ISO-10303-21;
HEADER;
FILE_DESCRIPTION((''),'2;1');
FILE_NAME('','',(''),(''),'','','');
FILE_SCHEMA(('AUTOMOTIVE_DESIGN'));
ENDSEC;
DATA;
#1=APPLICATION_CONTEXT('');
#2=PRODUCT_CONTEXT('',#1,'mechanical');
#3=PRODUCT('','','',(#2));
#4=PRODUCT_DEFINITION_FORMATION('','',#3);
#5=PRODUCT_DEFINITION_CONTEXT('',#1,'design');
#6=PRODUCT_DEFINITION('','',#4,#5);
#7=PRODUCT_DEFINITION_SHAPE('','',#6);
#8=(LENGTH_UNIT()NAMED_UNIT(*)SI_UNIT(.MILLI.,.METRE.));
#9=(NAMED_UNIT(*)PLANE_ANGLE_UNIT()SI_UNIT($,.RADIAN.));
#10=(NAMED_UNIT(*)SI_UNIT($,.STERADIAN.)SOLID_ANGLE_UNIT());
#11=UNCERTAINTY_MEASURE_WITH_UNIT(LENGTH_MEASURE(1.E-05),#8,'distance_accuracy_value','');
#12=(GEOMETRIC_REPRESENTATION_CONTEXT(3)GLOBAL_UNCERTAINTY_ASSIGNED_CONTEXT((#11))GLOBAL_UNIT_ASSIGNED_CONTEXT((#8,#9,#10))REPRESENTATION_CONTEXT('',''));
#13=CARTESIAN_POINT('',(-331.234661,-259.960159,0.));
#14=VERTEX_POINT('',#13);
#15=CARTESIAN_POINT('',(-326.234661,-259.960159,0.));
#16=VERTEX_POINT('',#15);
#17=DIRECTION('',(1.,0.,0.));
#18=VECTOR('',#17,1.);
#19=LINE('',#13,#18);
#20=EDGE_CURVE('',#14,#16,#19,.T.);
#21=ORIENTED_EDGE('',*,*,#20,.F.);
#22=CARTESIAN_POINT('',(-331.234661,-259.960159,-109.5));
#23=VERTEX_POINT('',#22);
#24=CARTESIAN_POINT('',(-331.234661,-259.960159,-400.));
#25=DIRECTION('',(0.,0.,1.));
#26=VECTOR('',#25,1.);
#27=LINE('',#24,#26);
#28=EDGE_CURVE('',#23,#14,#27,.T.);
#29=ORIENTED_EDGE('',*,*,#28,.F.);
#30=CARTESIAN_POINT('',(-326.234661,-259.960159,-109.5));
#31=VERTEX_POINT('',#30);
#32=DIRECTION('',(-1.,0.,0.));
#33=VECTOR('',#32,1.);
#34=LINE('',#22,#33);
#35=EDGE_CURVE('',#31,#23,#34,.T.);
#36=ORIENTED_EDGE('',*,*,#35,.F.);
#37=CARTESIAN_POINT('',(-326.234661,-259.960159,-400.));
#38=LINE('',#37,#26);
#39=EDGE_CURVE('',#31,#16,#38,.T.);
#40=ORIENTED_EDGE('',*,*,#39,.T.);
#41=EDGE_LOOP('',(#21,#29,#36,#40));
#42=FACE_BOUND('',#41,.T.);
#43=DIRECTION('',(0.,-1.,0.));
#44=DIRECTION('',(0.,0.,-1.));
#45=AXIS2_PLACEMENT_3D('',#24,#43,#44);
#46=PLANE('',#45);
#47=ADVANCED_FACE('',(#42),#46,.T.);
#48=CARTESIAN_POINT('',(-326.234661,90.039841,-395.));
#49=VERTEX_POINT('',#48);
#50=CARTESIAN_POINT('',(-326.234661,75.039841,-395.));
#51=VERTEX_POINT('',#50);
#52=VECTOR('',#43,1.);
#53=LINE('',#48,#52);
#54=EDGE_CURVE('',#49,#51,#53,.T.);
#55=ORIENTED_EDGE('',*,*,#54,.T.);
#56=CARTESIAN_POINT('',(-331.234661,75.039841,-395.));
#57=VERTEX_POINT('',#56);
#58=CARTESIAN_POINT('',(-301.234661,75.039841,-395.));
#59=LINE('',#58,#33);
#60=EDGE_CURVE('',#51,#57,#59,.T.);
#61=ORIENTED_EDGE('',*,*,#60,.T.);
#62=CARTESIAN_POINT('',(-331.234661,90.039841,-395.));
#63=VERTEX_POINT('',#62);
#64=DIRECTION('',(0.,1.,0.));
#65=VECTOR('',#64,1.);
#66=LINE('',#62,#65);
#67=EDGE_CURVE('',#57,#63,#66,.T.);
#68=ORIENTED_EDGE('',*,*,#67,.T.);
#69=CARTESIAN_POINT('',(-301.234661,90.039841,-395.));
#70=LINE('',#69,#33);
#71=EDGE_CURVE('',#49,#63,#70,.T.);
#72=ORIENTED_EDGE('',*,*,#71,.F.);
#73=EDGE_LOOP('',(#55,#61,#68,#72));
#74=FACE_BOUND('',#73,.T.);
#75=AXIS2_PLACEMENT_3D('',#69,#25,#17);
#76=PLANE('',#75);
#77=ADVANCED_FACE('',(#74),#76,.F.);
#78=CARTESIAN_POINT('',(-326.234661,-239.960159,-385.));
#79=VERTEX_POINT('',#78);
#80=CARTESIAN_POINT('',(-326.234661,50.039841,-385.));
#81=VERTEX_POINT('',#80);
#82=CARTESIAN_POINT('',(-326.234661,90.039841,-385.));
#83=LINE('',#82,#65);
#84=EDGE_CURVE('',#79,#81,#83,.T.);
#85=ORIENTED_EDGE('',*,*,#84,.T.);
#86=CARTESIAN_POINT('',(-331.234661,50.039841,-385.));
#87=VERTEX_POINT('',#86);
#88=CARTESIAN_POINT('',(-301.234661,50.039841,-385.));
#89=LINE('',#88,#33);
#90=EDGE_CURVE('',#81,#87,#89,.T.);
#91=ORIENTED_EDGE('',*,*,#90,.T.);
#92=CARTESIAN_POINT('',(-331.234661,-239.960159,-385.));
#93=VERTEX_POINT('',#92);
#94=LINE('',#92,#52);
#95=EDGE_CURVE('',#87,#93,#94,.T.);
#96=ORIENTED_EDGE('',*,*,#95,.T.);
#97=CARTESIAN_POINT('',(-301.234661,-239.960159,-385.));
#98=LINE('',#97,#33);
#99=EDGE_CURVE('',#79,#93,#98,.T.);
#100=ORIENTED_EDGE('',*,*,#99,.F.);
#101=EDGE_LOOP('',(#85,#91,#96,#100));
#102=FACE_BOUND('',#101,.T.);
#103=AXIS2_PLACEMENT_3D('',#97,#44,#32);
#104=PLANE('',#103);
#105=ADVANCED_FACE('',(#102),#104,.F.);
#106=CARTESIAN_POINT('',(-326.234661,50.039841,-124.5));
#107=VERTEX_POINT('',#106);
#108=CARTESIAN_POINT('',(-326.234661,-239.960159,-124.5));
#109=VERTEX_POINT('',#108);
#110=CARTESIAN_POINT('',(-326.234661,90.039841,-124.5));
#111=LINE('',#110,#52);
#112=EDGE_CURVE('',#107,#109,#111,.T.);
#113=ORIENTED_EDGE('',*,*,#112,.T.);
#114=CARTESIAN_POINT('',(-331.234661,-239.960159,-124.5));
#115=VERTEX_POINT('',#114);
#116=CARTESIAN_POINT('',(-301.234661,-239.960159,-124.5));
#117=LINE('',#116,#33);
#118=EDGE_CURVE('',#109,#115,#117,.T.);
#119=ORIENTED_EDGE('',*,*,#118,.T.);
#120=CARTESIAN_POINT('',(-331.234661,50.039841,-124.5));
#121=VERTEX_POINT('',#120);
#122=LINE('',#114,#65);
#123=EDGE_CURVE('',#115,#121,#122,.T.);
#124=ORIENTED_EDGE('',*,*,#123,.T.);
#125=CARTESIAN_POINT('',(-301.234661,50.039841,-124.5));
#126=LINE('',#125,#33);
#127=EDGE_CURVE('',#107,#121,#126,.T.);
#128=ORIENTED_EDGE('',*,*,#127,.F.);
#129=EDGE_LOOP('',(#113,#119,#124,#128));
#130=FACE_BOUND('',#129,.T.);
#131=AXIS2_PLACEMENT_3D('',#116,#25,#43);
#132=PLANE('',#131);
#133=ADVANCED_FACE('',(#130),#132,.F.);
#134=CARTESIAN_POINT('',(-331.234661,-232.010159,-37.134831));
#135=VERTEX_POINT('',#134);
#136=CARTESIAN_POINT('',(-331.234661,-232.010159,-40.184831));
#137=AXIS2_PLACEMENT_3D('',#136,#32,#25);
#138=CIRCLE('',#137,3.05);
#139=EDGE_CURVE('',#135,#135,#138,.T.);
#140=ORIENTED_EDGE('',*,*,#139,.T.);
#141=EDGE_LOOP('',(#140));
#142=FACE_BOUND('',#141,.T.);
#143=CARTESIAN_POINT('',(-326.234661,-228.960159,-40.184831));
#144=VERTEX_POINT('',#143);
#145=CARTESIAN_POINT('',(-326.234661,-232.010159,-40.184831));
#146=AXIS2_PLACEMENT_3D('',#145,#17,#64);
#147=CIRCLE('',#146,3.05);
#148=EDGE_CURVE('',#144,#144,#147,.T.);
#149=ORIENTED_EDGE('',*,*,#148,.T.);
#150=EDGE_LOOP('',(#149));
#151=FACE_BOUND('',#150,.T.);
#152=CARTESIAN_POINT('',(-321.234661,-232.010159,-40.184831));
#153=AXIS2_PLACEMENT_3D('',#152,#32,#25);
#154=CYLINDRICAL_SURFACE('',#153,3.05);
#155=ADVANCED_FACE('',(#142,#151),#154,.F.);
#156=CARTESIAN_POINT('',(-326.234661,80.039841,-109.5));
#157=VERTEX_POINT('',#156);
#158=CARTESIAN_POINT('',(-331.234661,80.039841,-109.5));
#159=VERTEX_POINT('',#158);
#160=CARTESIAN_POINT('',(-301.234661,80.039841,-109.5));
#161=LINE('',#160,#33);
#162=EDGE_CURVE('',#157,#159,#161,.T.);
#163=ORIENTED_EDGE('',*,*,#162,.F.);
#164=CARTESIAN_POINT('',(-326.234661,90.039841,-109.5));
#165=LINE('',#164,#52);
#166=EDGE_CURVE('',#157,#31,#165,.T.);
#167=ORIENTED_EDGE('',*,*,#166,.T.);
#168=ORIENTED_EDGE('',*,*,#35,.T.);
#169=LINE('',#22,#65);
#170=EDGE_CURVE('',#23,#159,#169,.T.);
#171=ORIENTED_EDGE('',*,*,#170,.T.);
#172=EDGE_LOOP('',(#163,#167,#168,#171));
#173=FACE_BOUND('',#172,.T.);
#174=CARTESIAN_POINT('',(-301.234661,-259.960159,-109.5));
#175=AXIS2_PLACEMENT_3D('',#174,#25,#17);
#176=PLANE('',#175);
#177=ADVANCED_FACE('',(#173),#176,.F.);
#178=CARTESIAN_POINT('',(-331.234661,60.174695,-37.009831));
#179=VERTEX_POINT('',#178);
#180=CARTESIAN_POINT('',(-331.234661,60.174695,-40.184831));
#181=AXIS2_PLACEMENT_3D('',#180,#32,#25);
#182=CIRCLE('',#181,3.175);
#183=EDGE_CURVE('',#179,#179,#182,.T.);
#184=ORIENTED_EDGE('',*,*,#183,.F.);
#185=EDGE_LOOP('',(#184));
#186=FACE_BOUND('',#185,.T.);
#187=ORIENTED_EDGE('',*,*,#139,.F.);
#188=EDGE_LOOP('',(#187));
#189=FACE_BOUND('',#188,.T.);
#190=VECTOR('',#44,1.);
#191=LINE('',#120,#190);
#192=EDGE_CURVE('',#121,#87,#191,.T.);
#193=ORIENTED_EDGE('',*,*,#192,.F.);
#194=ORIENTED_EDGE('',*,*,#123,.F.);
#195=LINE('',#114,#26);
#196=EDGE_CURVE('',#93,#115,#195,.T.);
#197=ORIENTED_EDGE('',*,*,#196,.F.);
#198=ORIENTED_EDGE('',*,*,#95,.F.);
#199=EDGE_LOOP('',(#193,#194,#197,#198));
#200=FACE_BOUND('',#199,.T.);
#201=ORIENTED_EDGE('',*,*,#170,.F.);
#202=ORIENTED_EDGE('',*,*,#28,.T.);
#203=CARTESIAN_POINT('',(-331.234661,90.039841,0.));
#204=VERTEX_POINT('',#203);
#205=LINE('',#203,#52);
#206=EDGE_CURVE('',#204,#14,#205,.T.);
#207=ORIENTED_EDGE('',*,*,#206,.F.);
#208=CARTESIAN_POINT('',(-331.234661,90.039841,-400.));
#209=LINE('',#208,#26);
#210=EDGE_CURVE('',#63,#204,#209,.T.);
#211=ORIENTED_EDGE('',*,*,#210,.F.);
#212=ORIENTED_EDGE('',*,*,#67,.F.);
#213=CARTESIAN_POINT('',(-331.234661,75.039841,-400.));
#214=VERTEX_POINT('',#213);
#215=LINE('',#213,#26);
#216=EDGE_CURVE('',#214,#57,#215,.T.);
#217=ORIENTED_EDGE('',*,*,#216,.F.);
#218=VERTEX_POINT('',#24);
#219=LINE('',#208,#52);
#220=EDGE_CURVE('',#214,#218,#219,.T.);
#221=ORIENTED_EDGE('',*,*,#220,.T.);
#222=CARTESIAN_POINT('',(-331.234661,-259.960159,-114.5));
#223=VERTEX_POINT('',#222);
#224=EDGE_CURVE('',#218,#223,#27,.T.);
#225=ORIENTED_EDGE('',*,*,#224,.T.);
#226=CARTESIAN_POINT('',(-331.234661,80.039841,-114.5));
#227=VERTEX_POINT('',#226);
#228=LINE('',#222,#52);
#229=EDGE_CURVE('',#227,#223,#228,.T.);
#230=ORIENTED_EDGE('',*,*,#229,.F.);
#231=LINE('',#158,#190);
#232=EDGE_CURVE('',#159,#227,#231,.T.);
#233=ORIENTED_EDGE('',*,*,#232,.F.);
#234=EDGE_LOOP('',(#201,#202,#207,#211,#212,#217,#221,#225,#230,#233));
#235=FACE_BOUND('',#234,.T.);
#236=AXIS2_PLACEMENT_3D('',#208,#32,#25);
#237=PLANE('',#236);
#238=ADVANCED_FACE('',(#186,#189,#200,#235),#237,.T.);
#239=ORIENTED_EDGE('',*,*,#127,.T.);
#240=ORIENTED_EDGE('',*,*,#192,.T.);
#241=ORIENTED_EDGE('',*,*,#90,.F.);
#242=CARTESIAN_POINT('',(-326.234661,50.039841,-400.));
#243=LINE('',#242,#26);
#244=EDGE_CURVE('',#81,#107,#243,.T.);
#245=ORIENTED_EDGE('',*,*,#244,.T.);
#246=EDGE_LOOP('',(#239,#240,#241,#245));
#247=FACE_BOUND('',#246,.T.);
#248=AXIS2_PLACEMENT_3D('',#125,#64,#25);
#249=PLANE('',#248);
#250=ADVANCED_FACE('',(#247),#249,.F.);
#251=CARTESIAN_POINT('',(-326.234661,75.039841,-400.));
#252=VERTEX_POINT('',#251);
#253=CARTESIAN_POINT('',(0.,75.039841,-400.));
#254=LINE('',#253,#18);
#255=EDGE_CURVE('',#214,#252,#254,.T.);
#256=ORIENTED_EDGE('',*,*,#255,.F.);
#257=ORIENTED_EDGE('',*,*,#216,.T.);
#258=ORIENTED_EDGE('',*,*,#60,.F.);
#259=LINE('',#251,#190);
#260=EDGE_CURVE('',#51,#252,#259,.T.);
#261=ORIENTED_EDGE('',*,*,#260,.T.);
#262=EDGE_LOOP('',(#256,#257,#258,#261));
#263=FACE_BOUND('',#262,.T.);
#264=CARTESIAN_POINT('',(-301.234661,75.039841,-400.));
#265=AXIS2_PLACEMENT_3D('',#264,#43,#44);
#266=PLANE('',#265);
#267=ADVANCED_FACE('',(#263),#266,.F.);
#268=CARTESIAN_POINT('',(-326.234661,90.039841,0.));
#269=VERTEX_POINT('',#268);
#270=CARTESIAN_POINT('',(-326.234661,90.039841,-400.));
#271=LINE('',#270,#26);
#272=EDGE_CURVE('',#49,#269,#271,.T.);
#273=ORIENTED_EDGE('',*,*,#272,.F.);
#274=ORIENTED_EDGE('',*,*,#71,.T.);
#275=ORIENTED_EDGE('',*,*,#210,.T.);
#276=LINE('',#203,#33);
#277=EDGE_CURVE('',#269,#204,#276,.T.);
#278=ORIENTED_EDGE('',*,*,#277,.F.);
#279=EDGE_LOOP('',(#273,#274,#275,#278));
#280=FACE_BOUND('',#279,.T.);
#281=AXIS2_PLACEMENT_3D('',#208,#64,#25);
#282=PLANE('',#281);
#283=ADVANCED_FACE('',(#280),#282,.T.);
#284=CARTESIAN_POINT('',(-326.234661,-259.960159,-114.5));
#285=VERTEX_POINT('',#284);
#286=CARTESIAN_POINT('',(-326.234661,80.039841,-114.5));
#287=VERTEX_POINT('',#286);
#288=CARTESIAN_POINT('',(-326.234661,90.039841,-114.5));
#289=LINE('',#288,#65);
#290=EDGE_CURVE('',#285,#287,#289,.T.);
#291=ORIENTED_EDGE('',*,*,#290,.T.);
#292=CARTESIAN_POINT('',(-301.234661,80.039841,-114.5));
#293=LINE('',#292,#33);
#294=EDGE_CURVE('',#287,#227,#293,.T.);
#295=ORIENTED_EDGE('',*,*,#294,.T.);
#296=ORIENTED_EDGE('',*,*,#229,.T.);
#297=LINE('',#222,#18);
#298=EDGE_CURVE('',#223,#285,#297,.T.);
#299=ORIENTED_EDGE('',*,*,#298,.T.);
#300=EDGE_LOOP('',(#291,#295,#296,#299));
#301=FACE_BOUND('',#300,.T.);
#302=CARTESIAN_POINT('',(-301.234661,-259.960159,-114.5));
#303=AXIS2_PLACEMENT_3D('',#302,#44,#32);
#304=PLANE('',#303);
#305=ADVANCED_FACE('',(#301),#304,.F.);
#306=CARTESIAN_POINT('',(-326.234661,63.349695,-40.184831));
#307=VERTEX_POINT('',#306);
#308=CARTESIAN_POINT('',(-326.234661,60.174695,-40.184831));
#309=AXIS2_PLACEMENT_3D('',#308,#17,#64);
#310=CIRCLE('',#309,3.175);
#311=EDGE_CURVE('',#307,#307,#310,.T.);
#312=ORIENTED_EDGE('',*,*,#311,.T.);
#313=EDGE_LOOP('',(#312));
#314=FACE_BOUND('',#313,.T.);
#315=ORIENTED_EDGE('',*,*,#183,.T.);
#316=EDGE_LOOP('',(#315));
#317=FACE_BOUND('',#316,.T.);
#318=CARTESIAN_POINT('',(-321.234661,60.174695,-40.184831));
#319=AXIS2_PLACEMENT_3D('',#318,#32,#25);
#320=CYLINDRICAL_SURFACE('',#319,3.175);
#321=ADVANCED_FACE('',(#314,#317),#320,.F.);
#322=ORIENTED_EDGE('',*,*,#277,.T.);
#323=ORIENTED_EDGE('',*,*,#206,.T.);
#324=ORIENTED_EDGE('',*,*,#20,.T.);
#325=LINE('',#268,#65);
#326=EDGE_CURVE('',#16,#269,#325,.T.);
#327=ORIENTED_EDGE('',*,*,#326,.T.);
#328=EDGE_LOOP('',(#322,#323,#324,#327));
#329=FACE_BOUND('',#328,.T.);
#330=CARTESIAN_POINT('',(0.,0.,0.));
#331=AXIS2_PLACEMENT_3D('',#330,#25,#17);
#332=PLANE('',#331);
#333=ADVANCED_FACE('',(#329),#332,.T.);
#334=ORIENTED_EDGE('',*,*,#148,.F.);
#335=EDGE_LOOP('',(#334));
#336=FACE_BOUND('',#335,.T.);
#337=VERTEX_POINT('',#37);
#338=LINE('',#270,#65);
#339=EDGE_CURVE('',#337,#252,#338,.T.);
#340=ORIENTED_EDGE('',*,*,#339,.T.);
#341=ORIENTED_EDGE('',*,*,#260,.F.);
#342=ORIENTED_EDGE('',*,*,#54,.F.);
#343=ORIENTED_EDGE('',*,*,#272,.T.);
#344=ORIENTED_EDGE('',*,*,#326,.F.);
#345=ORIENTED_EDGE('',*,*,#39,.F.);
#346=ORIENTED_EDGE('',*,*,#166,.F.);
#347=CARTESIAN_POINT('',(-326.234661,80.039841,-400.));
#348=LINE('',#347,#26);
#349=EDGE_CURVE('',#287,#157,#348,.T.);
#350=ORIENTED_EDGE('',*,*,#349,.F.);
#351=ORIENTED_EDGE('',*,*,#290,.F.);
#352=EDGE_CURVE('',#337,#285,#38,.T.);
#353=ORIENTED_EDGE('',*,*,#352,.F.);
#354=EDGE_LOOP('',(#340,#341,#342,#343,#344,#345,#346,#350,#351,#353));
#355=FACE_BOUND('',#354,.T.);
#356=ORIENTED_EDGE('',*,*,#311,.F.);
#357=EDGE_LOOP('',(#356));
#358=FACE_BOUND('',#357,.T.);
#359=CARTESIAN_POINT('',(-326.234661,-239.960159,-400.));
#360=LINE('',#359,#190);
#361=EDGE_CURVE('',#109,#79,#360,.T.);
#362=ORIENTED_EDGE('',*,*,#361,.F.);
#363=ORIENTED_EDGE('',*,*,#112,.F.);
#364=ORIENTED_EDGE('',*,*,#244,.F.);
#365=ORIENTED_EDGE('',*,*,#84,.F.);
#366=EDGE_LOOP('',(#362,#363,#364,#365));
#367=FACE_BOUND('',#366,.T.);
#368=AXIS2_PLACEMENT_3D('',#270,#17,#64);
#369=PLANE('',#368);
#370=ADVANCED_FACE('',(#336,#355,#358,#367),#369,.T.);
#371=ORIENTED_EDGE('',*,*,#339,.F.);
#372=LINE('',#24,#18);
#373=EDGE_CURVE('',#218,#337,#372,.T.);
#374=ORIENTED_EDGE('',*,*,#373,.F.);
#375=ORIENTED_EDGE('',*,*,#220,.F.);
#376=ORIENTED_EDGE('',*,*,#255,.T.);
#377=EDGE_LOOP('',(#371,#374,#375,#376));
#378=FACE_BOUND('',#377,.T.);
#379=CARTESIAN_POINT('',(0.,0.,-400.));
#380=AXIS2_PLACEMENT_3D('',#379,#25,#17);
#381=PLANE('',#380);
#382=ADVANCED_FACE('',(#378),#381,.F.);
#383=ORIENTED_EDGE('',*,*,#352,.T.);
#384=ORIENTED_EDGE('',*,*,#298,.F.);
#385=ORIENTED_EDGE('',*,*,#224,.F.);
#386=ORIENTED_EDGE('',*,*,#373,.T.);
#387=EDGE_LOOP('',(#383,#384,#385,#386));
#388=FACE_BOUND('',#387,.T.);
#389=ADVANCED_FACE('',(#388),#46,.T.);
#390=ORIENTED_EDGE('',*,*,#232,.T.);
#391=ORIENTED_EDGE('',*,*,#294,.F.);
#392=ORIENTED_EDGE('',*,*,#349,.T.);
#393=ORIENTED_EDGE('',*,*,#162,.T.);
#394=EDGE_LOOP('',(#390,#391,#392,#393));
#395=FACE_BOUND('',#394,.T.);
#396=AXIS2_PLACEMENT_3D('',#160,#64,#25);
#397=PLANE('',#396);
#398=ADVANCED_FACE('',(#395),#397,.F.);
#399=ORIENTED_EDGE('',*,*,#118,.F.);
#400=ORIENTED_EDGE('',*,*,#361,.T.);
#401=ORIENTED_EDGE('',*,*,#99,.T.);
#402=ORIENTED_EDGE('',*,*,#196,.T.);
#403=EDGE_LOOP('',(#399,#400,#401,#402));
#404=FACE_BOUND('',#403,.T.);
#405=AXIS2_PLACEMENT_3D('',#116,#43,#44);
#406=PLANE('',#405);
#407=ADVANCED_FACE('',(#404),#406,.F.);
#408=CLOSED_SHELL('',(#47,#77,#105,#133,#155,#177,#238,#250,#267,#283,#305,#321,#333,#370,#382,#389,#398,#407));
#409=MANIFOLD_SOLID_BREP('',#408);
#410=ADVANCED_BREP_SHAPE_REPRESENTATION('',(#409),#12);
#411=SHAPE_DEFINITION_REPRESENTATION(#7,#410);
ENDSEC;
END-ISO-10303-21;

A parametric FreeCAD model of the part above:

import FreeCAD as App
import Part
import Sketcher

V = App.Vector
Q = App.Units.Quantity


def add_polygon(sketch, points):
    """Adds a closed chain of lines whose ends are joined by coincident constraints."""
    first, n = sketch.GeometryCount, len(points)
    for a, b in zip(points, points[1:] + points[:1]):
        sketch.addGeometry(Part.LineSegment(App.Vector(*a, 0), App.Vector(*b, 0)), False)
    for i in range(n):
        sketch.addConstraint(Sketcher.Constraint("Coincident", first + i, 2, first + (i + 1) % n, 1))

doc = App.newDocument("Part")
params = doc.addObject("Spreadsheet::Sheet", "Params")
for row, (alias, value) in enumerate([
    ("sketch1_width", "5 mm"),
    ("sketch1_height", "350 mm"),
    ("pad1_length", "400 mm"),
    ("sketch2_width", "340 mm"),
    ("sketch2_width2", "290 mm"),
    ("sketch2_width3", "15 mm"),
    ("sketch2_height", "5 mm"),
    ("sketch2_height2", "260.5 mm"),
    ("pocket1_length", "30 mm"),
    ("sketch3_diameter", "6.1 mm"),
    ("sketch3_diameter2", "6.35 mm"),
    ("pocket2_length", "10 mm"),
], start=1):
    params.set(f"A{row}", alias)
    params.set(f"B{row}", "=" + value)
    params.setAlias(f"B{row}", alias)

body = doc.addObject("PartDesign::Body", "Body")

# Sketch on XY plane
sketch1 = body.newObject("Sketcher::SketchObject", "Sketch")
sketch1.AttachmentSupport = (doc.getObject("XY_Plane"), [""])
sketch1.MapMode = "FlatFace"
add_polygon(sketch1, [(-331.234661, 90.039841), (-331.234661, -259.960159), (-326.234661, -259.960159), (-326.234661, 90.039841)])  # lines 0-3
sketch1.addConstraint(Sketcher.Constraint("Vertical", 0))
sketch1.addConstraint(Sketcher.Constraint("Horizontal", 1))
sketch1.addConstraint(Sketcher.Constraint("Vertical", 2))
sketch1.addConstraint(Sketcher.Constraint("Horizontal", 3))
sketch1.addConstraint(Sketcher.Constraint("DistanceX", 1, 1, 1, 2, Q("5 mm")))
sketch1.addConstraint(Sketcher.Constraint("DistanceY", 0, 2, 0, 1, Q("350 mm")))
sketch1.addConstraint(Sketcher.Constraint("DistanceX", 0, 2, -1, 1, Q("331.234661 mm")))
sketch1.addConstraint(Sketcher.Constraint("DistanceY", 0, 2, -1, 1, Q("259.960159 mm")))
sketch1.setExpression("Constraints[8]", "Params.sketch1_width")
sketch1.setExpression("Constraints[9]", "Params.sketch1_height")
pad1 = body.newObject("PartDesign::Pad", "Pad")
pad1.Profile = sketch1
pad1.setExpression("Length", "Params.pad1_length")
pad1.Reversed = True

# Sketch on YZ plane
sketch2 = body.newObject("Sketcher::SketchObject", "Sketch001")
sketch2.AttachmentSupport = (doc.getObject("YZ_Plane"), [""])
sketch2.MapMode = "FlatFace"
sketch2.AttachmentOffset = App.Placement(V(0, 0, -331.234661), App.Rotation())
add_polygon(sketch2, [(80.039841, -114.5), (-259.960159, -114.5), (-259.960159, -109.5), (80.039841, -109.5)])  # lines 0-3
add_polygon(sketch2, [(50.039841, -385), (-239.960159, -385), (-239.960159, -124.5), (50.039841, -124.5)])  # lines 4-7
add_polygon(sketch2, [(90.039841, -400), (75.039841, -400), (75.039841, -395), (90.039841, -395)])  # lines 8-11
sketch2.addConstraint(Sketcher.Constraint("Horizontal", 0))
sketch2.addConstraint(Sketcher.Constraint("Vertical", 1))
sketch2.addConstraint(Sketcher.Constraint("Horizontal", 2))
sketch2.addConstraint(Sketcher.Constraint("Vertical", 3))
sketch2.addConstraint(Sketcher.Constraint("Horizontal", 4))
sketch2.addConstraint(Sketcher.Constraint("Vertical", 5))
sketch2.addConstraint(Sketcher.Constraint("Horizontal", 6))
sketch2.addConstraint(Sketcher.Constraint("Vertical", 7))
sketch2.addConstraint(Sketcher.Constraint("Horizontal", 8))
sketch2.addConstraint(Sketcher.Constraint("Vertical", 9))
sketch2.addConstraint(Sketcher.Constraint("Horizontal", 10))
sketch2.addConstraint(Sketcher.Constraint("Vertical", 11))
sketch2.addConstraint(Sketcher.Constraint("Equal", 3, 9))
sketch2.addConstraint(Sketcher.Constraint("DistanceX", 0, 2, 0, 1, Q("340 mm")))
sketch2.addConstraint(Sketcher.Constraint("DistanceX", 4, 2, 4, 1, Q("290 mm")))
sketch2.addConstraint(Sketcher.Constraint("DistanceX", 8, 2, 8, 1, Q("15 mm")))
sketch2.addConstraint(Sketcher.Constraint("DistanceY", 1, 1, 1, 2, Q("5 mm")))
sketch2.addConstraint(Sketcher.Constraint("DistanceY", 5, 1, 5, 2, Q("260.5 mm")))
sketch2.addConstraint(Sketcher.Constraint("DistanceY", 4, 2, -1, 1, Q("385 mm")))
sketch2.addConstraint(Sketcher.Constraint("DistanceY", 8, 2, -1, 1, Q("400 mm")))
sketch2.addConstraint(Sketcher.Constraint("DistanceX", 0, 2, 4, 2, Q("20 mm")))
sketch2.addConstraint(Sketcher.Constraint("DistanceY", 5, 2, 0, 2, Q("10 mm")))
sketch2.addConstraint(Sketcher.Constraint("DistanceX", 7, 2, 8, 2, Q("25 mm")))
sketch2.addConstraint(Sketcher.Constraint("DistanceX", 0, 2, -1, 1, Q("259.960159 mm")))
sketch2.setExpression("Constraints[25]", "Params.sketch2_width")
sketch2.setExpression("Constraints[26]", "Params.sketch2_width2")
sketch2.setExpression("Constraints[27]", "Params.sketch2_width3")
sketch2.setExpression("Constraints[28]", "Params.sketch2_height")
sketch2.setExpression("Constraints[29]", "Params.sketch2_height2")
pocket1 = body.newObject("PartDesign::Pocket", "Pocket")
pocket1.Profile = sketch2
pocket1.setExpression("Length", "Params.pocket1_length")
pocket1.Reversed = True

# Sketch on YZ plane
sketch3 = body.newObject("Sketcher::SketchObject", "Sketch002")
sketch3.AttachmentSupport = (doc.getObject("YZ_Plane"), [""])
sketch3.MapMode = "FlatFace"
sketch3.AttachmentOffset = App.Placement(V(0, 0, -331.234661), App.Rotation())
sketch3.addGeometry(Part.Circle(V(60.174695, -40.184831, 0), V(0, 0, 1), 3.175), False)
sketch3.addGeometry(Part.Circle(V(-232.010159, -40.184831, 0), V(0, 0, 1), 3.05), False)
sketch3.addConstraint(Sketcher.Constraint("Horizontal", 0, 3, 1, 3))
sketch3.addConstraint(Sketcher.Constraint("Diameter", 1, Q("6.1 mm")))
sketch3.addConstraint(Sketcher.Constraint("Diameter", 0, Q("6.35 mm")))
sketch3.addConstraint(Sketcher.Constraint("DistanceY", 0, 3, -1, 1, Q("40.184831 mm")))
sketch3.addConstraint(Sketcher.Constraint("DistanceX", 1, 3, -1, 1, Q("232.010159 mm")))
sketch3.addConstraint(Sketcher.Constraint("DistanceX", -1, 1, 0, 3, Q("60.174695 mm")))
sketch3.setExpression("Constraints[1]", "Params.sketch3_diameter")
sketch3.setExpression("Constraints[2]", "Params.sketch3_diameter2")
pocket2 = body.newObject("PartDesign::Pocket", "Pocket001")
pocket2.Profile = sketch3
pocket2.setExpression("Length", "Params.pocket2_length")
pocket2.Reversed = True

doc.recompute()
